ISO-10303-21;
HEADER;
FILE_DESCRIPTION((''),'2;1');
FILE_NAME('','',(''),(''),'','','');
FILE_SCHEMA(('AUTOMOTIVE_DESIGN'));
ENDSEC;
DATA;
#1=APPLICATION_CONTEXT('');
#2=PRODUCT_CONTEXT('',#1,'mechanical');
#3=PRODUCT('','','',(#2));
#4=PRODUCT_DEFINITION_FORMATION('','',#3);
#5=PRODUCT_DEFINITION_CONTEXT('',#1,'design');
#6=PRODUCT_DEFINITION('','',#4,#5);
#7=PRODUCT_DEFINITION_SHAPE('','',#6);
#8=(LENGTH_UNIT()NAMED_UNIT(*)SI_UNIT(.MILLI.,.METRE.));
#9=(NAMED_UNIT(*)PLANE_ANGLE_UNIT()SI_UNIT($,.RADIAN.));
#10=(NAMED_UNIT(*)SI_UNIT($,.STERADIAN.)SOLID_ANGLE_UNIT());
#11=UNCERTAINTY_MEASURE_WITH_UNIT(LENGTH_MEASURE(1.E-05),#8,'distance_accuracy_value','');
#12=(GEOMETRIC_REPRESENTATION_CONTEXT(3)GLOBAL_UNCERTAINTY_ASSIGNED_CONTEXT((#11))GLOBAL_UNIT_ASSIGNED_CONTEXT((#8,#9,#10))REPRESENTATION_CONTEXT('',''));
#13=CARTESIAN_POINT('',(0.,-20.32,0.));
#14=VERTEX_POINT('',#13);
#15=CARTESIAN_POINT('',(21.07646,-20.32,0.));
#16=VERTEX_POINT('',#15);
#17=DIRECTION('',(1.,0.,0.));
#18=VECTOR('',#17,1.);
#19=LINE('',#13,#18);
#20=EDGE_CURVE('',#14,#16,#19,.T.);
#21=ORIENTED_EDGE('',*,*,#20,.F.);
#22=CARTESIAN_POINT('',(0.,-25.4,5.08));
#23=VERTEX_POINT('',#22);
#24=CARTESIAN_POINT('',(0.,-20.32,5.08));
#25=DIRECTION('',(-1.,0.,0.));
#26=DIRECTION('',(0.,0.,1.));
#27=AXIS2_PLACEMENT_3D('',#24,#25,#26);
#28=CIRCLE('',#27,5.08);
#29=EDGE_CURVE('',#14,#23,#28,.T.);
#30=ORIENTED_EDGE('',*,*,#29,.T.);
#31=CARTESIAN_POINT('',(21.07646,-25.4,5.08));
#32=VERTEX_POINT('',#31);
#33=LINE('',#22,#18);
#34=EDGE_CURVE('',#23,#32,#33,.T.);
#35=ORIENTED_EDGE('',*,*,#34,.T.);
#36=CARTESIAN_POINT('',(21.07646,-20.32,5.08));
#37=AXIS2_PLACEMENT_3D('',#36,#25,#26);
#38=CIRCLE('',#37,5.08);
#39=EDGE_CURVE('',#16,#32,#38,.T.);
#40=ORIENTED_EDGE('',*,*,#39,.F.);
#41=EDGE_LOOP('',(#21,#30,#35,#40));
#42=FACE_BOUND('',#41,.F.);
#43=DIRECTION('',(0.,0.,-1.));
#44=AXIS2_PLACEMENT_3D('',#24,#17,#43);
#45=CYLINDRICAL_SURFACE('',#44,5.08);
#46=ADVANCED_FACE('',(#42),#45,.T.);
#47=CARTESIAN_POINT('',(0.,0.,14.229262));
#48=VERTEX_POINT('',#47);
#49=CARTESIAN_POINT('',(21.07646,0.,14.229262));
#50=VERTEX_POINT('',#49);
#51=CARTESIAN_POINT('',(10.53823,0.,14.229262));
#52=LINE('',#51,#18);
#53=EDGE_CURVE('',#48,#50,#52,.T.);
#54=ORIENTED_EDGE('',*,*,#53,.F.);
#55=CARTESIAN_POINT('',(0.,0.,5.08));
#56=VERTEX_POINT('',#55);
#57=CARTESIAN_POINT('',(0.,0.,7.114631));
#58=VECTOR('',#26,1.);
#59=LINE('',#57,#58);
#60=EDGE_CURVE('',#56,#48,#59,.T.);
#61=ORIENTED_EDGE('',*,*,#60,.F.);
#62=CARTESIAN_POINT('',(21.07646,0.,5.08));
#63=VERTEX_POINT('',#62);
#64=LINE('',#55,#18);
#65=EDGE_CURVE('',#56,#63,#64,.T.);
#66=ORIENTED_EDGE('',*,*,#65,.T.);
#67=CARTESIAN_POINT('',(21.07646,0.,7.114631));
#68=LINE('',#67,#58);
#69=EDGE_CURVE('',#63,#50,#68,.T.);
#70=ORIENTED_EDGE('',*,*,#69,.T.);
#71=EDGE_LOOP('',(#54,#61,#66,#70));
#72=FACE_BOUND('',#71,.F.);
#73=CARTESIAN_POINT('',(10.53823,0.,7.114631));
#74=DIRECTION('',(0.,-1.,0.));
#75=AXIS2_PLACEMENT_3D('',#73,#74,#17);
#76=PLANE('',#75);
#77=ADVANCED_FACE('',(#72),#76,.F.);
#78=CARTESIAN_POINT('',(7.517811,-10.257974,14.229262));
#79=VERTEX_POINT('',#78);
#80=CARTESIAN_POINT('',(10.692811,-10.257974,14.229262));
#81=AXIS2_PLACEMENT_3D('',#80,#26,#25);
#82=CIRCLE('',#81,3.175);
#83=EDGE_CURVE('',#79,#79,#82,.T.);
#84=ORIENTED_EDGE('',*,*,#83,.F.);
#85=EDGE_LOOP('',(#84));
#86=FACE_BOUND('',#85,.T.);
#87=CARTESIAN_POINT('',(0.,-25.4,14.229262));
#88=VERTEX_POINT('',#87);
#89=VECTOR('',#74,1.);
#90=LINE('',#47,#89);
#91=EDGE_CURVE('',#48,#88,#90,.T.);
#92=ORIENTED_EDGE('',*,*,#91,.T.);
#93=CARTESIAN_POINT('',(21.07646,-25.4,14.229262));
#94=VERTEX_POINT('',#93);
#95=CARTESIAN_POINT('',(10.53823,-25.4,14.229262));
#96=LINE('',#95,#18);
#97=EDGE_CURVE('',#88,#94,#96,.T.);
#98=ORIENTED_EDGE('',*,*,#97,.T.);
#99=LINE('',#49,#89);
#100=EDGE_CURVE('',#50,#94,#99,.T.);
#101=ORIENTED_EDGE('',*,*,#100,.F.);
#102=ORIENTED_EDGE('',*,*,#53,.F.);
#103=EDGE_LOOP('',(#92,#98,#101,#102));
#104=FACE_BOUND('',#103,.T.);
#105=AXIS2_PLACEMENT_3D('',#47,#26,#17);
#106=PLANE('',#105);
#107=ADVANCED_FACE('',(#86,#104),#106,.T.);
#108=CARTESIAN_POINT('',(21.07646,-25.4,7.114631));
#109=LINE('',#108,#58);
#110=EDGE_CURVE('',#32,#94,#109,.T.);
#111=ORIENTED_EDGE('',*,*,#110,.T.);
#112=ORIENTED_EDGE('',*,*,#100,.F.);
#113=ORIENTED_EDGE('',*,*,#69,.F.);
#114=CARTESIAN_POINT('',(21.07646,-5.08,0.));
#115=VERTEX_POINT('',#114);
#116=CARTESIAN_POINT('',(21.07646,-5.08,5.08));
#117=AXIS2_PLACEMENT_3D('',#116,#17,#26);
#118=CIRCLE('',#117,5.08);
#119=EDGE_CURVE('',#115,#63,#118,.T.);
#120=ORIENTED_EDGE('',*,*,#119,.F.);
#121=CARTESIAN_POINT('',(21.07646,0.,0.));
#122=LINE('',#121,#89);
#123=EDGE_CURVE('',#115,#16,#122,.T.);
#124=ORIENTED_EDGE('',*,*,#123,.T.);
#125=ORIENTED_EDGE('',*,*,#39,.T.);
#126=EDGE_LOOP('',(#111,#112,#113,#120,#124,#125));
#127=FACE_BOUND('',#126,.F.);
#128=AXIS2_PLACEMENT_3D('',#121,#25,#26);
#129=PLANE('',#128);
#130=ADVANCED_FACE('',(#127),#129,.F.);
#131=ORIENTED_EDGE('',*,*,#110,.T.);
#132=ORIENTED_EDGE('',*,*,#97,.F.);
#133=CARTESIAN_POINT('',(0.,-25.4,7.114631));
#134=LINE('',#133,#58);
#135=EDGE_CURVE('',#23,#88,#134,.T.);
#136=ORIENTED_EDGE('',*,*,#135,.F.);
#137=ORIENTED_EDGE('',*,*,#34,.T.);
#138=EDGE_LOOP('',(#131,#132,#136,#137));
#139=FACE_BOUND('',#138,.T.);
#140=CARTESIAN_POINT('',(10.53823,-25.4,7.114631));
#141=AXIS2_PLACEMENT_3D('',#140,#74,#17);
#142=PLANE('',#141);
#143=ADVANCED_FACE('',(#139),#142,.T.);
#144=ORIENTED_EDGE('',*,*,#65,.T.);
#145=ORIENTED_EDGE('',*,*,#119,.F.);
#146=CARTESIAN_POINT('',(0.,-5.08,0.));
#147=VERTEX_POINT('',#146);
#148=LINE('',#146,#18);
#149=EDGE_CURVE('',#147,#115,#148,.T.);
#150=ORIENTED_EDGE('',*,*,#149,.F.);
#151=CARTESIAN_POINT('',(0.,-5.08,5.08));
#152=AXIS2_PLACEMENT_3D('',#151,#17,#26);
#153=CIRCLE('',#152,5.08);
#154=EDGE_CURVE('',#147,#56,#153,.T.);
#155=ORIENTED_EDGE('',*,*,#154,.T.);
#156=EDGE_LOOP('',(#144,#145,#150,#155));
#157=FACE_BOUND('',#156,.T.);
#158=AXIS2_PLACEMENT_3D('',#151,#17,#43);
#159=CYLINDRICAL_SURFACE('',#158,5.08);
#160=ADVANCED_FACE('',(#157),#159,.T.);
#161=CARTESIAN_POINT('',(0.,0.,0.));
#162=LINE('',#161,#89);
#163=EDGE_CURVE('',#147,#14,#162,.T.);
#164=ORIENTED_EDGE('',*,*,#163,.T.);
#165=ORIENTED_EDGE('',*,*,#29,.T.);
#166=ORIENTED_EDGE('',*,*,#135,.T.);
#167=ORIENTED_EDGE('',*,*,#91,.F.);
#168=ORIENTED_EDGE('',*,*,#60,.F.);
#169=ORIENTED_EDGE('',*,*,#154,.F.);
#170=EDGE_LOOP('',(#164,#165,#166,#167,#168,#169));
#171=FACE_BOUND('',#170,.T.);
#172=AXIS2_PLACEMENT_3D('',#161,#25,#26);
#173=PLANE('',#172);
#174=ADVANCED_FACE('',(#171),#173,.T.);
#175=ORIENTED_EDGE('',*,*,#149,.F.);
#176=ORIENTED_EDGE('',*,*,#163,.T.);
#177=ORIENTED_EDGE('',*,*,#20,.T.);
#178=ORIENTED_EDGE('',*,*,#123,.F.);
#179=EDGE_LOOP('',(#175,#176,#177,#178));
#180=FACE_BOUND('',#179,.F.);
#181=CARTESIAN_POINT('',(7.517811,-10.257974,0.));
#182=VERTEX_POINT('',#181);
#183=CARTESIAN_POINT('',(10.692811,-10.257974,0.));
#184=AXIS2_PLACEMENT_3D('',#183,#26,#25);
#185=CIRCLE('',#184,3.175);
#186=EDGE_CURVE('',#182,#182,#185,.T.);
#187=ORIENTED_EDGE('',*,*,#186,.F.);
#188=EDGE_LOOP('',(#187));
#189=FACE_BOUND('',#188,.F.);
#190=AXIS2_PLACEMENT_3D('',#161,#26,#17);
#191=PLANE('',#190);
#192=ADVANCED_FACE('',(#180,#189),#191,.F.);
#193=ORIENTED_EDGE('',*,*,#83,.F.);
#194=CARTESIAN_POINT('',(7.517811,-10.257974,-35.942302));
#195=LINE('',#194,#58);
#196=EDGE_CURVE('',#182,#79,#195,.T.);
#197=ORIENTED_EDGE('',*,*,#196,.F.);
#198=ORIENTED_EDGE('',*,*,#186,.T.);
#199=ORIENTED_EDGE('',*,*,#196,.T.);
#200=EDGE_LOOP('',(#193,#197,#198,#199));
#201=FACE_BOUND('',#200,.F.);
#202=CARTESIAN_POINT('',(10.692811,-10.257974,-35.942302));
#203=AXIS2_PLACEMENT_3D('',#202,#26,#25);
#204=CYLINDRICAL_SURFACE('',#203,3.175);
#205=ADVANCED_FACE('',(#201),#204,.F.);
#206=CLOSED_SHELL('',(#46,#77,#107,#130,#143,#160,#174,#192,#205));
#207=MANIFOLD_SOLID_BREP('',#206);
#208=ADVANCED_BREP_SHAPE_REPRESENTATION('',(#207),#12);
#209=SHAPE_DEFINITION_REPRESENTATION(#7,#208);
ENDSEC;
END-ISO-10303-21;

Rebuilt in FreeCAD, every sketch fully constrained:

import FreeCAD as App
import Part
import Sketcher
from FreeCAD import Vector
Q = App.Units.Quantity


def edges_at(feature, points):
    """Names of the edges that pass closest to the given points."""
    edges = feature.Shape.Edges
    near = lambda p: min(range(len(edges)), key=lambda i: edges[i].distToShape(Part.Vertex(*p))[0])
    return sorted({f"Edge{near(p) + 1}" for p in points})


def add_polygon(sketch, points):
    """Adds a closed chain of lines whose ends are joined by coincident constraints."""
    first, n = sketch.GeometryCount, len(points)
    for a, b in zip(points, points[1:] + points[:1]):
        sketch.addGeometry(Part.LineSegment(App.Vector(*a, 0), App.Vector(*b, 0)), False)
    for i in range(n):
        sketch.addConstraint(Sketcher.Constraint("Coincident", first + i, 2, first + (i + 1) % n, 1))

doc = App.newDocument("Part")
body = doc.addObject("PartDesign::Body", "Body")

# Sketch on XZ plane
sketch1 = body.newObject("Sketcher::SketchObject", "Sketch")
sketch1.AttachmentSupport = (doc.getObject("XZ_Plane"), [""])
sketch1.MapMode = "FlatFace"
add_polygon(sketch1, [(0, 14.229262), (0, 0), (21.07646, 0), (21.07646, 14.229262)])  # lines 0-3
sketch1.addConstraint(Sketcher.Constraint("Vertical", 0))
sketch1.addConstraint(Sketcher.Constraint("Horizontal", 1))
sketch1.addConstraint(Sketcher.Constraint("Vertical", 2))
sketch1.addConstraint(Sketcher.Constraint("Horizontal", 3))
sketch1.addConstraint(Sketcher.Constraint("Coincident", 0, 2, -1, 1))
sketch1.addConstraint(Sketcher.Constraint("DistanceX", 1, 1, 1, 2, Q("21.076461 mm")))
sketch1.addConstraint(Sketcher.Constraint("DistanceY", 0, 2, 0, 1, Q("14.229262 mm")))
pad1 = body.newObject("PartDesign::Pad", "Pad")
pad1.Profile = sketch1
pad1.Length = Q("1 in")
doc.recompute()

fillet = body.newObject("PartDesign::Fillet", "Fillet")
fillet.Base = (pad1, edges_at(pad1, [(10.538, -25.4, 0)]))
fillet.Radius = Q("0.2 in")

# Sketch on XY plane
sketch2 = body.newObject("Sketcher::SketchObject", "Sketch001")
sketch2.AttachmentSupport = (doc.getObject("XY_Plane"), [""])
sketch2.MapMode = "FlatFace"
sketch2.addGeometry(Part.Circle(Vector(10.692811, -10.257974, 0), Vector(0, 0, 1), 3.175), False)
sketch2.addConstraint(Sketcher.Constraint("Diameter", 0, Q("0.25 in")))
sketch2.addConstraint(Sketcher.Constraint("DistanceX", -1, 1, 0, 3, Q("10.692811 mm")))
sketch2.addConstraint(Sketcher.Constraint("DistanceY", 0, 3, -1, 1, Q("10.257974 mm")))
doc.recompute()
hole = body.newObject("PartDesign::Hole", "Hole")
hole.Profile = sketch2
hole.ThreadType = "None"
hole.Diameter = Q("0.25 in")
hole.DepthType = "ThroughAll"
hole.Reversed = True
doc.recompute()

fillet2 = body.newObject("PartDesign::Fillet", "Fillet001")
fillet2.Base = (hole, edges_at(hole, [(10.538, 0, 0)]))
fillet2.Radius = Q("0.2 in")

doc.recompute()
